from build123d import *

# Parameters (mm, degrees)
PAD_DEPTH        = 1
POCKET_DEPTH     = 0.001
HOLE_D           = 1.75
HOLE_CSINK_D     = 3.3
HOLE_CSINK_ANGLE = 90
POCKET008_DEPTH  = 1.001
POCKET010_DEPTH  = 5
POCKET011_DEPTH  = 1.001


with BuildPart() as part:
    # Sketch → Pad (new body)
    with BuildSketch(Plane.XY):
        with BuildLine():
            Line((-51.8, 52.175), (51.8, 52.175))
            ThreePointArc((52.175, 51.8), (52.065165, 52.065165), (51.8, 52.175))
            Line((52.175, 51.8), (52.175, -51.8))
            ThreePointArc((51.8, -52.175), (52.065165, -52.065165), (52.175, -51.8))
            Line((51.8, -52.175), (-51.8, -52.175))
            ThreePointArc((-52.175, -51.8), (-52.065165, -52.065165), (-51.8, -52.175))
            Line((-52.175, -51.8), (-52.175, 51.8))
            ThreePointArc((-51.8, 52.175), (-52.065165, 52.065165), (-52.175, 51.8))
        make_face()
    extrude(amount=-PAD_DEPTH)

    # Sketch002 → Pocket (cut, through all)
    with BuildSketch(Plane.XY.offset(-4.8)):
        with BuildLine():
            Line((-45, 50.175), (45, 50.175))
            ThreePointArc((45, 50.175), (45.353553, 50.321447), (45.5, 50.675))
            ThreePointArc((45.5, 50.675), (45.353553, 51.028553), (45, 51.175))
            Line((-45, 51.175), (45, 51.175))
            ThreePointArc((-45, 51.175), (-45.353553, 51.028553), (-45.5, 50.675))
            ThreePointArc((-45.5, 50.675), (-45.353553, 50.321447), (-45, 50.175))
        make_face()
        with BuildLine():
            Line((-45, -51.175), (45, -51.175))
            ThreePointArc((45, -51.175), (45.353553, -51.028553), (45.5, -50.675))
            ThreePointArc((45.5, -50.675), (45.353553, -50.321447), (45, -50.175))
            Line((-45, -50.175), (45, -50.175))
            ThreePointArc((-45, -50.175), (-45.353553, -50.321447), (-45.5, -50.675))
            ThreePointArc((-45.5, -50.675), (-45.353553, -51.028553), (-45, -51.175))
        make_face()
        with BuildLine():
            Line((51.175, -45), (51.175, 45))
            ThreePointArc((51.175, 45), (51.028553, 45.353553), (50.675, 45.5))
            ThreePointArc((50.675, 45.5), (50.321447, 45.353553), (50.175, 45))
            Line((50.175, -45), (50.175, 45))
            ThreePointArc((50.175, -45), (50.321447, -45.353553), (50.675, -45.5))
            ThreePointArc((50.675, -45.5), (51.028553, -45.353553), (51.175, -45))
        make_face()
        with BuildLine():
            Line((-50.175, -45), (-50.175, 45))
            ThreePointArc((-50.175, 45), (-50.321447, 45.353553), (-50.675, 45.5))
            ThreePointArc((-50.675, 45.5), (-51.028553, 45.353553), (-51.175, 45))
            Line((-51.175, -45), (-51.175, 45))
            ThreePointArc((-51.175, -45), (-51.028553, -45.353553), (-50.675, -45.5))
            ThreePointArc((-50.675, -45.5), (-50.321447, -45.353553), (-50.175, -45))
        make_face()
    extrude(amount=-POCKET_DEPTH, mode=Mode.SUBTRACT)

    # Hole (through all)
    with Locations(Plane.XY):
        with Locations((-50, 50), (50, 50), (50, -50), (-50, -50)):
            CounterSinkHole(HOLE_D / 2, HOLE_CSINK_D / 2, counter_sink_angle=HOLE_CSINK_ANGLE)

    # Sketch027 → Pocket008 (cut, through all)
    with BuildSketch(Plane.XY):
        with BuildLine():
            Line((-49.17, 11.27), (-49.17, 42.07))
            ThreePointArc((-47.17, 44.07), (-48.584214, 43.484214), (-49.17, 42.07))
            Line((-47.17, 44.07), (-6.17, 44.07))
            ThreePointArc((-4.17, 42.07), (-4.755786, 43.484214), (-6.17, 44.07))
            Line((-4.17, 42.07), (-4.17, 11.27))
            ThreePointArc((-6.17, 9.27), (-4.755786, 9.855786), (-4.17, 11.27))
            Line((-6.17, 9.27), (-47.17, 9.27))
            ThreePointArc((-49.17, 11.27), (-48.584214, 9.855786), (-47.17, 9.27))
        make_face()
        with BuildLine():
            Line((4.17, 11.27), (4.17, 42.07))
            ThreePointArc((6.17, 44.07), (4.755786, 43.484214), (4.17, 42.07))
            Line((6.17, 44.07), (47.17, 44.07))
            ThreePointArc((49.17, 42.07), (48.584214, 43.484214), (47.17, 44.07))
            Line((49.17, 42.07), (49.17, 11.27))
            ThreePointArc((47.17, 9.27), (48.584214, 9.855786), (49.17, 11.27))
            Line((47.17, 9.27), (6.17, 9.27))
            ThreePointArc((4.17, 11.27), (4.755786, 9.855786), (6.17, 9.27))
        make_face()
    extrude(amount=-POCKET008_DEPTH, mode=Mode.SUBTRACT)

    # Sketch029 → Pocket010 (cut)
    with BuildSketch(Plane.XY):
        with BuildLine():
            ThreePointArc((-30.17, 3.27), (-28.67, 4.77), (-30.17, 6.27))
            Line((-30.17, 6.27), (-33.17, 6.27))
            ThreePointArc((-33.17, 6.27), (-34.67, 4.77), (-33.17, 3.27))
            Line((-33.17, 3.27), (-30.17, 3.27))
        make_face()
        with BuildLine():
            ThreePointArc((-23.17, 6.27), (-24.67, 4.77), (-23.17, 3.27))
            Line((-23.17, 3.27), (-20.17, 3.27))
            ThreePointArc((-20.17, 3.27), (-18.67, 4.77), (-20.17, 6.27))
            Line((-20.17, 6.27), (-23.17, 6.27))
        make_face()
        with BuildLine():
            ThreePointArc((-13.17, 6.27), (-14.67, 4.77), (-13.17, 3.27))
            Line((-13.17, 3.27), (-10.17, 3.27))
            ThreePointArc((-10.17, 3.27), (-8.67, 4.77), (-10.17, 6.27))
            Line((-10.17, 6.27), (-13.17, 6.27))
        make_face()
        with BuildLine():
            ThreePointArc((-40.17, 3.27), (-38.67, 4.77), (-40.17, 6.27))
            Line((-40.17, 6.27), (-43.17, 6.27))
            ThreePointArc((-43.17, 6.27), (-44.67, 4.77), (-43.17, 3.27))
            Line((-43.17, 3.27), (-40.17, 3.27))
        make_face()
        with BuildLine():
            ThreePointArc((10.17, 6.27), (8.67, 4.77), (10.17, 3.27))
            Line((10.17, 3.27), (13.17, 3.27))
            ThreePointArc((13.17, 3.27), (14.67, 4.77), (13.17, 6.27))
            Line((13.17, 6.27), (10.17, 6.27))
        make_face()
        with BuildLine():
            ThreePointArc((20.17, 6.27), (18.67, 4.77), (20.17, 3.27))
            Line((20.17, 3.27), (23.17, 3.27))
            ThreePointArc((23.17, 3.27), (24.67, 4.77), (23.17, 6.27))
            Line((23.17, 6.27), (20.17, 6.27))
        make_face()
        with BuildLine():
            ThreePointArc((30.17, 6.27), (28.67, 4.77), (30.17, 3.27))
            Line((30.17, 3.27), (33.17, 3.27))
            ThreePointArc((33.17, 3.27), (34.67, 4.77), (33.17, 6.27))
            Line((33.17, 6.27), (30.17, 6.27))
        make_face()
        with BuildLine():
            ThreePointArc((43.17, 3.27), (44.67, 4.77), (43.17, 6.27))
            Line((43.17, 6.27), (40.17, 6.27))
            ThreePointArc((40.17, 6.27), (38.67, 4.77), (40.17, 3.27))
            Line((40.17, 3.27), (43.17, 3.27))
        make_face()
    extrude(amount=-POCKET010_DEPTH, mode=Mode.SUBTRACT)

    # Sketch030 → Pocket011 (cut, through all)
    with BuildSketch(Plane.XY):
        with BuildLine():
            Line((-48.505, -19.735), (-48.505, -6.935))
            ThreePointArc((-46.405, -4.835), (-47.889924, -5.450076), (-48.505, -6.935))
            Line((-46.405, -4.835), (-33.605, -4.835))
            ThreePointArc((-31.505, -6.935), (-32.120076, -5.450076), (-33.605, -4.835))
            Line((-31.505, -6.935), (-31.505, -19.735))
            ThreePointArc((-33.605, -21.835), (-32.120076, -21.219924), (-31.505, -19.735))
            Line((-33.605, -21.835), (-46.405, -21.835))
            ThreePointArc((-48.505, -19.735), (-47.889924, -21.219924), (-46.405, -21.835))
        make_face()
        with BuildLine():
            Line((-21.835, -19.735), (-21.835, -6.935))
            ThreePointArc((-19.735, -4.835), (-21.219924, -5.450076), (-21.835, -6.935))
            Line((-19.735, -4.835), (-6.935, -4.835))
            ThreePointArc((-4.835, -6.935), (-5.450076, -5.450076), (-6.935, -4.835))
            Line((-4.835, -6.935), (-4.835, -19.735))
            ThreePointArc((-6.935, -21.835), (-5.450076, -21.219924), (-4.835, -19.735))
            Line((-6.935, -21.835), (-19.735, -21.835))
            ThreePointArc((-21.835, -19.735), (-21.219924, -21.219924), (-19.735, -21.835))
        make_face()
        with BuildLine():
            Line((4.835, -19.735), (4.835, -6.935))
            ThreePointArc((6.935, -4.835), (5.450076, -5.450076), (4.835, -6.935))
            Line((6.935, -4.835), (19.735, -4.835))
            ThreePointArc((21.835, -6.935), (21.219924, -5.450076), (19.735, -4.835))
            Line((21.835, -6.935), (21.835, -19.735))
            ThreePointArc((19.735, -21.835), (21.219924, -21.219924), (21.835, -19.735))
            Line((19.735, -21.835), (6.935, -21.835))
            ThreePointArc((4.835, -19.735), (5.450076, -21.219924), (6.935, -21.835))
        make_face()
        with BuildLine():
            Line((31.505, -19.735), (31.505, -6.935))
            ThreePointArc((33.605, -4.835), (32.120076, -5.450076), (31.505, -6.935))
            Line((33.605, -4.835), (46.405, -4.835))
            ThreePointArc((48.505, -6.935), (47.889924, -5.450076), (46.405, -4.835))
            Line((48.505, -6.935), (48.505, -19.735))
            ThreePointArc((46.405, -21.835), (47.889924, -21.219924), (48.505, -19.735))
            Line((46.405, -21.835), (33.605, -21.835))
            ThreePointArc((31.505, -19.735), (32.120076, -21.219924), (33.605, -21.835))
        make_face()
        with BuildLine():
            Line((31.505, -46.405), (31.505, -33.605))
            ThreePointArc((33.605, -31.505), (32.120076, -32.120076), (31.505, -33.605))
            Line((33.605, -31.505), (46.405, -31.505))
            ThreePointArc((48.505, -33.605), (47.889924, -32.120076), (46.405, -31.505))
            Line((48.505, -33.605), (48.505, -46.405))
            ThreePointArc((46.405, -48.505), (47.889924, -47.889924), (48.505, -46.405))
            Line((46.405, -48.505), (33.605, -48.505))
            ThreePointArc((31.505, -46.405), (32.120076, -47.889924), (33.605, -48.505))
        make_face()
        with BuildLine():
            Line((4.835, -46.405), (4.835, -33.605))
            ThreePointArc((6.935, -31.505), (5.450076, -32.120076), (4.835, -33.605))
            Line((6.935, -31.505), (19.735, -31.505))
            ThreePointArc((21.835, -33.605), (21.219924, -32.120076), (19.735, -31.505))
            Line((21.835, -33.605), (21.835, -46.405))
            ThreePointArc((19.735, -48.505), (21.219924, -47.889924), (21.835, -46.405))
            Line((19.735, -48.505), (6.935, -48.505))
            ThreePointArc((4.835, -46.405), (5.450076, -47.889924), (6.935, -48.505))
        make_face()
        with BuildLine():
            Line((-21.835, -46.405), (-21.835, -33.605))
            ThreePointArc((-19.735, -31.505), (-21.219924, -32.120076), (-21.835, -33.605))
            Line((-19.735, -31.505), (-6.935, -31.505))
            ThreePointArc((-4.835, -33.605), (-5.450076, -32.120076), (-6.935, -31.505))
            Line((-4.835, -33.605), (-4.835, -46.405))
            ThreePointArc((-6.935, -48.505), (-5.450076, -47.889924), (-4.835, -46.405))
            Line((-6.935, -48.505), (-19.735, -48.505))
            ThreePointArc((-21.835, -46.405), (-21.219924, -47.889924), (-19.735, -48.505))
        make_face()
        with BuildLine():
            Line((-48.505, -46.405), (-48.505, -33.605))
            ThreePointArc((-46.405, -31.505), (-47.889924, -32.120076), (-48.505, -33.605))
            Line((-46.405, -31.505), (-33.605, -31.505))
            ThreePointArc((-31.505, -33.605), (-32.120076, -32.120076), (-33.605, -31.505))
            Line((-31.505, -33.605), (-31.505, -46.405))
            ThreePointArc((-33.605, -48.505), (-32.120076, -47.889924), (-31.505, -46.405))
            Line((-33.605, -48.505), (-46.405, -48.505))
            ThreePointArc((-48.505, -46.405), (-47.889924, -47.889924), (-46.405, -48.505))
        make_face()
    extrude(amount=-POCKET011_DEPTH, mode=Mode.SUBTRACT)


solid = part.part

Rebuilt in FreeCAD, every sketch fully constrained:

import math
import FreeCAD as App
import Part
import Sketcher

V = App.Vector
Q = App.Units.Quantity

doc = App.newDocument("Part")
body = doc.addObject("PartDesign::Body", "Body")

# Sketch on XY plane
sketch1 = doc.addObject("Sketcher::SketchObject", "Sketch")
body.addObject(sketch1)
sketch1.AttachmentSupport = (doc.XY_Plane, [""])
sketch1.MapMode = "FlatFace"
sketch1.addGeometry([
    Part.LineSegment(V(51.8, 52.175, 0), V(-51.8, 52.175, 0)),  # 0
    Part.ArcOfCircle(Part.Circle(V(-51.8, 51.8, 0), V(0, 0, 1), 0.375), math.radians(90.000022), math.radians(179.999978)),  # 1
    Part.LineSegment(V(-52.175, 51.8, 0), V(-52.175, -51.8, 0)),  # 2
    Part.ArcOfCircle(Part.Circle(V(-51.8, -51.8, 0), V(0, 0, 1), 0.375), math.radians(-179.999978), math.radians(-90.000022)),  # 3
    Part.LineSegment(V(-51.8, -52.175, 0), V(51.8, -52.175, 0)),  # 4
    Part.ArcOfCircle(Part.Circle(V(51.8, -51.8, 0), V(0, 0, 1), 0.375), math.radians(-89.999978), math.radians(-0.000022)),  # 5
    Part.LineSegment(V(52.175, -51.8, 0), V(52.175, 51.8, 0)),  # 6
    Part.ArcOfCircle(Part.Circle(V(51.8, 51.8, 0), V(0, 0, 1), 0.375), math.radians(0.000022), math.radians(89.999978)),  # 7
], False)
sketch1.addConstraint([
    Sketcher.Constraint("Tangent", 0, 2, 1, 1),
    Sketcher.Constraint("Tangent", 1, 2, 2, 1),
    Sketcher.Constraint("Tangent", 2, 2, 3, 1),
    Sketcher.Constraint("Tangent", 3, 2, 4, 1),
    Sketcher.Constraint("Tangent", 4, 2, 5, 1),
    Sketcher.Constraint("Tangent", 5, 2, 6, 1),
    Sketcher.Constraint("Tangent", 6, 2, 7, 1),
    Sketcher.Constraint("Tangent", 7, 2, 0, 1),
    Sketcher.Constraint("Horizontal", 0),
    Sketcher.Constraint("Vertical", 2),
    Sketcher.Constraint("Horizontal", 4),
    Sketcher.Constraint("Vertical", 6),
    Sketcher.Constraint("Equal", 1, 3),
    Sketcher.Constraint("Equal", 3, 5),
    Sketcher.Constraint("Equal", 5, 7),
    Sketcher.Constraint("Symmetric", 1, 3, 5, 3, -1, 1),
    Sketcher.Constraint("Equal", 4, 2),
    Sketcher.Constraint("DistanceX", 0, 2, 0, 1, Q("103.6 mm")),
    Sketcher.Constraint("Radius", 1, Q("0.375 mm")),
])
pad1 = doc.addObject("PartDesign::Pad", "Pad")
body.addObject(pad1)
pad1.Profile = sketch1
pad1.Length = 1
pad1.Reversed = True

# Sketch on XY plane
sketch2 = doc.addObject("Sketcher::SketchObject", "Sketch001")
body.addObject(sketch2)
sketch2.AttachmentSupport = (doc.XY_Plane, [""])
sketch2.MapMode = "FlatFace"
sketch2.AttachmentOffset = App.Placement(V(0, 0, -4.8), App.Rotation())
sketch2.addGeometry([
    Part.LineSegment(V(-45, 50.175, 0), V(45, 50.175, 0)),  # 0
    Part.ArcOfCircle(Part.Circle(V(44.999999, 50.675001, 0), V(0, 0, 1), 0.500001), math.radians(-89.999847), math.radians(-0.000153)),  # 1
    Part.ArcOfCircle(Part.Circle(V(44.999999, 50.674999, 0), V(0, 0, 1), 0.500001), math.radians(0.000153), math.radians(89.999847)),  # 2
    Part.LineSegment(V(45, 51.175, 0), V(-45, 51.175, 0)),  # 3
    Part.ArcOfCircle(Part.Circle(V(-44.999999, 50.674999, 0), V(0, 0, 1), 0.500001), math.radians(90.000153), math.radians(179.999847)),  # 4
    Part.ArcOfCircle(Part.Circle(V(-44.999999, 50.675001, 0), V(0, 0, 1), 0.500001), math.radians(-179.999847), math.radians(-90.000153)),  # 5
    Part.LineSegment(V(-45, -51.175, 0), V(45, -51.175, 0)),  # 6
    Part.ArcOfCircle(Part.Circle(V(44.999999, -50.674999, 0), V(0, 0, 1), 0.500001), math.radians(-89.999847), math.radians(-0.000153)),  # 7
    Part.ArcOfCircle(Part.Circle(V(44.999999, -50.675001, 0), V(0, 0, 1), 0.500001), math.radians(0.000153), math.radians(89.999847)),  # 8
    Part.LineSegment(V(45, -50.175, 0), V(-45, -50.175, 0)),  # 9
    Part.ArcOfCircle(Part.Circle(V(-44.999999, -50.675001, 0), V(0, 0, 1), 0.500001), math.radians(90.000153), math.radians(179.999847)),  # 10
    Part.ArcOfCircle(Part.Circle(V(-44.999999, -50.674999, 0), V(0, 0, 1), 0.500001), math.radians(-179.999847), math.radians(-90.000153)),  # 11
    Part.LineSegment(V(51.175, -45, 0), V(51.175, 45, 0)),  # 12
    Part.ArcOfCircle(Part.Circle(V(50.674999, 44.999999, 0), V(0, 0, 1), 0.500001), math.radians(0.000153), math.radians(89.999847)),  # 13
    Part.ArcOfCircle(Part.Circle(V(50.675001, 44.999999, 0), V(0, 0, 1), 0.500001), math.radians(90.000153), math.radians(179.999847)),  # 14
    Part.LineSegment(V(50.175, 45, 0), V(50.175, -45, 0)),  # 15
    Part.ArcOfCircle(Part.Circle(V(50.675001, -44.999999, 0), V(0, 0, 1), 0.500001), math.radians(-179.999847), math.radians(-90.000153)),  # 16
    Part.ArcOfCircle(Part.Circle(V(50.674999, -44.999999, 0), V(0, 0, 1), 0.500001), math.radians(-89.999847), math.radians(-0.000153)),  # 17
    Part.LineSegment(V(-50.175, -45, 0), V(-50.175, 45, 0)),  # 18
    Part.ArcOfCircle(Part.Circle(V(-50.675001, 44.999999, 0), V(0, 0, 1), 0.500001), math.radians(0.000153), math.radians(89.999847)),  # 19
    Part.ArcOfCircle(Part.Circle(V(-50.674999, 44.999999, 0), V(0, 0, 1), 0.500001), math.radians(90.000153), math.radians(179.999847)),  # 20
    Part.LineSegment(V(-51.175, 45, 0), V(-51.175, -45, 0)),  # 21
    Part.ArcOfCircle(Part.Circle(V(-50.674999, -44.999999, 0), V(0, 0, 1), 0.500001), math.radians(-179.999847), math.radians(-90.000153)),  # 22
    Part.ArcOfCircle(Part.Circle(V(-50.675001, -44.999999, 0), V(0, 0, 1), 0.500001), math.radians(-89.999847), math.radians(-0.000153)),  # 23
], False)
sketch2.addConstraint([
    Sketcher.Constraint("Coincident", 0, 2, 1, 1),
    Sketcher.Constraint("Coincident", 1, 2, 2, 1),
    Sketcher.Constraint("Coincident", 2, 2, 3, 1),
    Sketcher.Constraint("Coincident", 3, 2, 4, 1),
    Sketcher.Constraint("Coincident", 4, 2, 5, 1),
    Sketcher.Constraint("Coincident", 5, 2, 0, 1),
    Sketcher.Constraint("Coincident", 6, 2, 7, 1),
    Sketcher.Constraint("Coincident", 7, 2, 8, 1),
    Sketcher.Constraint("Coincident", 8, 2, 9, 1),
    Sketcher.Constraint("Coincident", 9, 2, 10, 1),
    Sketcher.Constraint("Coincident", 10, 2, 11, 1),
    Sketcher.Constraint("Coincident", 11, 2, 6, 1),
    Sketcher.Constraint("Coincident", 12, 2, 13, 1),
    Sketcher.Constraint("Coincident", 13, 2, 14, 1),
    Sketcher.Constraint("Coincident", 14, 2, 15, 1),
    Sketcher.Constraint("Coincident", 15, 2, 16, 1),
    Sketcher.Constraint("Coincident", 16, 2, 17, 1),
    Sketcher.Constraint("Coincident", 17, 2, 12, 1),
    Sketcher.Constraint("Coincident", 18, 2, 19, 1),
    Sketcher.Constraint("Coincident", 19, 2, 20, 1),
    Sketcher.Constraint("Coincident", 20, 2, 21, 1),
    Sketcher.Constraint("Coincident", 21, 2, 22, 1),
    Sketcher.Constraint("Coincident", 22, 2, 23, 1),
    Sketcher.Constraint("Coincident", 23, 2, 18, 1),
    Sketcher.Constraint("Horizontal", 0),
    Sketcher.Constraint("Horizontal", 3),
    Sketcher.Constraint("Horizontal", 6),
    Sketcher.Constraint("Horizontal", 9),
    Sketcher.Constraint("Vertical", 12),
    Sketcher.Constraint("Vertical", 15),
    Sketcher.Constraint("Vertical", 18),
    Sketcher.Constraint("Vertical", 21),
    Sketcher.Constraint("Coincident", 2, 3, 1, 3),
    Sketcher.Constraint("Coincident", 5, 3, 4, 3),
    Sketcher.Constraint("Coincident", 8, 3, 7, 3),
    Sketcher.Constraint("Coincident", 11, 3, 10, 3),
    Sketcher.Constraint("Coincident", 14, 3, 13, 3),
    Sketcher.Constraint("Coincident", 17, 3, 16, 3),
    Sketcher.Constraint("Coincident", 20, 3, 19, 3),
    Sketcher.Constraint("Coincident", 23, 3, 22, 3),
    Sketcher.Constraint("Equal", 5, 7),
    Sketcher.Constraint("Equal", 11, 13),
    Sketcher.Constraint("Equal", 17, 19),
    Sketcher.Constraint("Symmetric", 4, 3, 7, 3, -1, 1),
    Sketcher.Constraint("Symmetric", 16, 3, 19, 3, -1, 1),
    Sketcher.Constraint("Symmetric", 1, 2, 10, 2, -1, 1),
    Sketcher.Constraint("Symmetric", 13, 2, 22, 2, -1, 1),
    Sketcher.Constraint("Symmetric", 1, 2, 4, 2, -2),
    Sketcher.Constraint("Symmetric", 13, 2, 19, 2, -2),
    Sketcher.Constraint("Horizontal", 5, 3, 1, 2),
    Sketcher.Constraint("Horizontal", 11, 3, 7, 2),
    Sketcher.Constraint("Horizontal", 20, 3, 12, 2),
    Sketcher.Constraint("Horizontal", 12, 2, 14, 2),
    Sketcher.Constraint("Horizontal", 23, 3, 15, 2),
    Sketcher.Constraint("Horizontal", 15, 2, 17, 2),
    Sketcher.Constraint("Horizontal", 14, 2, 18, 2),
    Sketcher.Constraint("Horizontal", 18, 2, 20, 2),
    Sketcher.Constraint("Horizontal", 17, 2, 21, 2),
    Sketcher.Constraint("Horizontal", 21, 2, 23, 2),
    Sketcher.Constraint("Vertical", 8, 3, 0, 2),
    Sketcher.Constraint("Vertical", 0, 2, 2, 2),
    Sketcher.Constraint("Vertical", 11, 3, 3, 2),
    Sketcher.Constraint("Vertical", 3, 2, 5, 2),
    Sketcher.Constraint("Vertical", 2, 2, 6, 2),
    Sketcher.Constraint("Vertical", 6, 2, 8, 2),
    Sketcher.Constraint("Vertical", 5, 2, 9, 2),
    Sketcher.Constraint("Vertical", 9, 2, 11, 2),
    Sketcher.Constraint("Vertical", 17, 3, 13, 2),
    Sketcher.Constraint("Vertical", 13, 2, 16, 2),
    Sketcher.Constraint("Equal", 9, 12),
    Sketcher.Constraint("Radius", 1, Q("0.500001 mm")),
    Sketcher.Constraint("DistanceX", 0, 1, 0, 2, Q("90 mm")),
    Sketcher.Constraint("DistanceY", 7, 3, 1, 3, Q("101.35 mm")),
    Sketcher.Constraint("DistanceX", -1, 1, 13, 3, Q("50.674999 mm")),
])
pocket1 = doc.addObject("PartDesign::Pocket", "Pocket")
body.addObject(pocket1)
pocket1.Profile = sketch2
pocket1.Type = "ThroughAll"

# Sketch on XY plane
sketch3 = doc.addObject("Sketcher::SketchObject", "Sketch002")
body.addObject(sketch3)
sketch3.AttachmentSupport = (doc.XY_Plane, [""])
sketch3.MapMode = "FlatFace"
sketch3.addGeometry([
    Part.Circle(V(-50, 50, 0), V(0, 0, 1), 0.875),
    Part.Circle(V(50, 50, 0), V(0, 0, 1), 0.875),
    Part.Circle(V(50, -50, 0), V(0, 0, 1), 0.875),
    Part.Circle(V(-50, -50, 0), V(0, 0, 1), 0.875),
], False)
sketch3.addConstraint([
    Sketcher.Constraint("Equal", 0, 1),
    Sketcher.Constraint("Equal", 1, 2),
    Sketcher.Constraint("Equal", 2, 3),
    Sketcher.Constraint("Symmetric", 0, 3, 2, 3, -1, 1),
    Sketcher.Constraint("Symmetric", 1, 3, 3, 3, -1, 1),
    Sketcher.Constraint("Symmetric", 0, 3, 1, 3, -2),
    Sketcher.Constraint("Diameter", 0, Q("1.75 mm")),
    Sketcher.Constraint("DistanceX", 0, 3, -1, 1, Q("50 mm")),
    Sketcher.Constraint("DistanceY", -1, 1, 0, 3, Q("50 mm")),
])
doc.recompute()
hole = doc.addObject("PartDesign::Hole", "Hole")
body.addObject(hole)
hole.Profile = sketch3
hole.ThreadType = "None"
hole.Diameter = 1.75
hole.DepthType = "ThroughAll"
hole.HoleCutType = "Countersink"
hole.HoleCutDiameter = 3.3
hole.HoleCutCountersinkAngle = 90

# Sketch on XY plane
sketch4 = doc.addObject("Sketcher::SketchObject", "Sketch003")
body.addObject(sketch4)
sketch4.AttachmentSupport = (doc.XY_Plane, [""])
sketch4.MapMode = "FlatFace"
sketch4.addGeometry([
    Part.LineSegment(V(-49.17, 42.07, 0), V(-49.17, 11.27, 0)),  # 0
    Part.ArcOfCircle(Part.Circle(V(-47.170001, 11.269999, 0), V(0, 0, 1), 1.999999), math.radians(179.999957), math.radians(270.000043)),  # 1
    Part.LineSegment(V(-47.17, 9.27, 0), V(-6.17, 9.27, 0)),  # 2
    Part.ArcOfCircle(Part.Circle(V(-6.169999, 11.269999, 0), V(0, 0, 1), 1.999999), math.radians(-90.000043), math.radians(0.000043)),  # 3
    Part.LineSegment(V(-4.17, 11.27, 0), V(-4.17, 42.07, 0)),  # 4
    Part.ArcOfCircle(Part.Circle(V(-6.169999, 42.070001, 0), V(0, 0, 1), 1.999999), math.radians(-0.000043), math.radians(90.000043)),  # 5
    Part.LineSegment(V(-6.17, 44.07, 0), V(-47.17, 44.07, 0)),  # 6
    Part.ArcOfCircle(Part.Circle(V(-47.170001, 42.070001, 0), V(0, 0, 1), 1.999999), math.radians(89.999957), math.radians(180.000043)),  # 7
    Part.LineSegment(V(4.17, 42.07, 0), V(4.17, 11.27, 0)),  # 8
    Part.ArcOfCircle(Part.Circle(V(6.169999, 11.269999, 0), V(0, 0, 1), 1.999999), math.radians(179.999957), math.radians(270.000043)),  # 9
    Part.LineSegment(V(6.17, 9.27, 0), V(47.17, 9.27, 0)),  # 10
    Part.ArcOfCircle(Part.Circle(V(47.170001, 11.269999, 0), V(0, 0, 1), 1.999999), math.radians(-90.000043), math.radians(0.000043)),  # 11
    Part.LineSegment(V(49.17, 11.27, 0), V(49.17, 42.07, 0)),  # 12
    Part.ArcOfCircle(Part.Circle(V(47.170001, 42.070001, 0), V(0, 0, 1), 1.999999), math.radians(-0.000043), math.radians(90.000043)),  # 13
    Part.LineSegment(V(47.17, 44.07, 0), V(6.17, 44.07, 0)),  # 14
    Part.ArcOfCircle(Part.Circle(V(6.169999, 42.070001, 0), V(0, 0, 1), 1.999999), math.radians(89.999957), math.radians(180.000043)),  # 15
], False)
sketch4.addConstraint([
    Sketcher.Constraint("Tangent", 0, 2, 1, 1),
    Sketcher.Constraint("Tangent", 1, 2, 2, 1),
    Sketcher.Constraint("Tangent", 2, 2, 3, 1),
    Sketcher.Constraint("Tangent", 3, 2, 4, 1),
    Sketcher.Constraint("Tangent", 4, 2, 5, 1),
    Sketcher.Constraint("Tangent", 5, 2, 6, 1),
    Sketcher.Constraint("Tangent", 6, 2, 7, 1),
    Sketcher.Constraint("Tangent", 7, 2, 0, 1),
    Sketcher.Constraint("Tangent", 8, 2, 9, 1),
    Sketcher.Constraint("Tangent", 9, 2, 10, 1),
    Sketcher.Constraint("Tangent", 10, 2, 11, 1),
    Sketcher.Constraint("Tangent", 11, 2, 12, 1),
    Sketcher.Constraint("Tangent", 12, 2, 13, 1),
    Sketcher.Constraint("Tangent", 13, 2, 14, 1),
    Sketcher.Constraint("Tangent", 14, 2, 15, 1),
    Sketcher.Constraint("Tangent", 15, 2, 8, 1),
    Sketcher.Constraint("Vertical", 0),
    Sketcher.Constraint("Horizontal", 2),
    Sketcher.Constraint("Vertical", 4),
    Sketcher.Constraint("Horizontal", 6),
    Sketcher.Constraint("Vertical", 8),
    Sketcher.Constraint("Horizontal", 10),
    Sketcher.Constraint("Vertical", 12),
    Sketcher.Constraint("Horizontal", 14),
    Sketcher.Constraint("Equal", 1, 3),
    Sketcher.Constraint("Equal", 3, 5),
    Sketcher.Constraint("Equal", 5, 7),
    Sketcher.Constraint("Equal", 7, 9),
    Sketcher.Constraint("Equal", 9, 11),
    Sketcher.Constraint("Equal", 11, 13),
    Sketcher.Constraint("Equal", 13, 15),
    Sketcher.Constraint("Symmetric", 3, 3, 9, 3, -2),
    Sketcher.Constraint("Symmetric", 7, 3, 13, 3, -2),
    Sketcher.Constraint("Radius", 1, Q("1.999999 mm")),
    Sketcher.Constraint("DistanceX", 2, 1, 2, 2, Q("41 mm")),
    Sketcher.Constraint("DistanceY", 0, 2, 0, 1, Q("30.8 mm")),
    Sketcher.Constraint("DistanceX", 1, 3, -1, 1, Q("47.170001 mm")),
    Sketcher.Constraint("DistanceY", -1, 1, 1, 3, Q("11.269999 mm")),
])
pocket2 = doc.addObject("PartDesign::Pocket", "Pocket001")
body.addObject(pocket2)
pocket2.Profile = sketch4
pocket2.Type = "ThroughAll"

# Sketch on XY plane
sketch5 = doc.addObject("Sketcher::SketchObject", "Sketch004")
body.addObject(sketch5)
sketch5.AttachmentSupport = (doc.XY_Plane, [""])
sketch5.MapMode = "FlatFace"
sketch5.addGeometry([
    Part.ArcOfCircle(Part.Circle(V(-30.17, 4.77, 0), V(0, 0, 1), 1.5), math.radians(-90), math.radians(90)),  # 0
    Part.LineSegment(V(-30.17, 6.27, 0), V(-33.17, 6.27, 0)),  # 1
    Part.ArcOfCircle(Part.Circle(V(-33.17, 4.77, 0), V(0, 0, 1), 1.5), math.radians(90), math.radians(270)),  # 2
    Part.LineSegment(V(-33.17, 3.27, 0), V(-30.17, 3.27, 0)),  # 3
    Part.ArcOfCircle(Part.Circle(V(-23.17, 4.77, 0), V(0, 0, 1), 1.5), math.radians(90), math.radians(270)),  # 4
    Part.LineSegment(V(-23.17, 3.27, 0), V(-20.17, 3.27, 0)),  # 5
    Part.ArcOfCircle(Part.Circle(V(-20.17, 4.77, 0), V(0, 0, 1), 1.5), math.radians(-90), math.radians(90)),  # 6
    Part.LineSegment(V(-20.17, 6.27, 0), V(-23.17, 6.27, 0)),  # 7
    Part.ArcOfCircle(Part.Circle(V(-13.17, 4.77, 0), V(0, 0, 1), 1.5), math.radians(90), math.radians(270)),  # 8
    Part.LineSegment(V(-13.17, 3.27, 0), V(-10.17, 3.27, 0)),  # 9
    Part.ArcOfCircle(Part.Circle(V(-10.17, 4.77, 0), V(0, 0, 1), 1.5), math.radians(-90), math.radians(90)),  # 10
    Part.LineSegment(V(-10.17, 6.27, 0), V(-13.17, 6.27, 0)),  # 11
    Part.ArcOfCircle(Part.Circle(V(-40.17, 4.77, 0), V(0, 0, 1), 1.5), math.radians(-90), math.radians(90)),  # 12
    Part.LineSegment(V(-40.17, 6.27, 0), V(-43.17, 6.27, 0)),  # 13
    Part.ArcOfCircle(Part.Circle(V(-43.17, 4.77, 0), V(0, 0, 1), 1.5), math.radians(90), math.radians(270)),  # 14
    Part.LineSegment(V(-43.17, 3.27, 0), V(-40.17, 3.27, 0)),  # 15
    Part.ArcOfCircle(Part.Circle(V(10.17, 4.77, 0), V(0, 0, 1), 1.5), math.radians(90), math.radians(270)),  # 16
    Part.LineSegment(V(10.17, 3.27, 0), V(13.17, 3.27, 0)),  # 17
    Part.ArcOfCircle(Part.Circle(V(13.17, 4.77, 0), V(0, 0, 1), 1.5), math.radians(-90), math.radians(90)),  # 18
    Part.LineSegment(V(13.17, 6.27, 0), V(10.17, 6.27, 0)),  # 19
    Part.ArcOfCircle(Part.Circle(V(20.17, 4.77, 0), V(0, 0, 1), 1.5), math.radians(90), math.radians(270)),  # 20
    Part.LineSegment(V(20.17, 3.27, 0), V(23.17, 3.27, 0)),  # 21
    Part.ArcOfCircle(Part.Circle(V(23.17, 4.77, 0), V(0, 0, 1), 1.5), math.radians(-90), math.radians(90)),  # 22
    Part.LineSegment(V(23.17, 6.27, 0), V(20.17, 6.27, 0)),  # 23
    Part.ArcOfCircle(Part.Circle(V(30.17, 4.77, 0), V(0, 0, 1), 1.5), math.radians(90), math.radians(270)),  # 24
    Part.LineSegment(V(30.17, 3.27, 0), V(33.17, 3.27, 0)),  # 25
    Part.ArcOfCircle(Part.Circle(V(33.17, 4.77, 0), V(0, 0, 1), 1.5), math.radians(-90), math.radians(90)),  # 26
    Part.LineSegment(V(33.17, 6.27, 0), V(30.17, 6.27, 0)),  # 27
    Part.ArcOfCircle(Part.Circle(V(43.17, 4.77, 0), V(0, 0, 1), 1.5), math.radians(-90), math.radians(90)),  # 28
    Part.LineSegment(V(43.17, 6.27, 0), V(40.17, 6.27, 0)),  # 29
    Part.ArcOfCircle(Part.Circle(V(40.17, 4.77, 0), V(0, 0, 1), 1.5), math.radians(90), math.radians(270)),  # 30
    Part.LineSegment(V(40.17, 3.27, 0), V(43.17, 3.27, 0)),  # 31
], False)
sketch5.addConstraint([
    Sketcher.Constraint("Tangent", 0, 2, 1, 1),
    Sketcher.Constraint("Tangent", 1, 2, 2, 1),
    Sketcher.Constraint("Tangent", 2, 2, 3, 1),
    Sketcher.Constraint("Tangent", 3, 2, 0, 1),
    Sketcher.Constraint("Tangent", 4, 2, 5, 1),
    Sketcher.Constraint("Tangent", 5, 2, 6, 1),
    Sketcher.Constraint("Tangent", 6, 2, 7, 1),
    Sketcher.Constraint("Tangent", 7, 2, 4, 1),
    Sketcher.Constraint("Tangent", 8, 2, 9, 1),
    Sketcher.Constraint("Tangent", 9, 2, 10, 1),
    Sketcher.Constraint("Tangent", 10, 2, 11, 1),
    Sketcher.Constraint("Tangent", 11, 2, 8, 1),
    Sketcher.Constraint("Tangent", 12, 2, 13, 1),
    Sketcher.Constraint("Tangent", 13, 2, 14, 1),
    Sketcher.Constraint("Tangent", 14, 2, 15, 1),
    Sketcher.Constraint("Tangent", 15, 2, 12, 1),
    Sketcher.Constraint("Tangent", 16, 2, 17, 1),
    Sketcher.Constraint("Tangent", 17, 2, 18, 1),
    Sketcher.Constraint("Tangent", 18, 2, 19, 1),
    Sketcher.Constraint("Tangent", 19, 2, 16, 1),
    Sketcher.Constraint("Tangent", 20, 2, 21, 1),
    Sketcher.Constraint("Tangent", 21, 2, 22, 1),
    Sketcher.Constraint("Tangent", 22, 2, 23, 1),
    Sketcher.Constraint("Tangent", 23, 2, 20, 1),
    Sketcher.Constraint("Tangent", 24, 2, 25, 1),
    Sketcher.Constraint("Tangent", 25, 2, 26, 1),
    Sketcher.Constraint("Tangent", 26, 2, 27, 1),
    Sketcher.Constraint("Tangent", 27, 2, 24, 1),
    Sketcher.Constraint("Tangent", 28, 2, 29, 1),
    Sketcher.Constraint("Tangent", 29, 2, 30, 1),
    Sketcher.Constraint("Tangent", 30, 2, 31, 1),
    Sketcher.Constraint("Tangent", 31, 2, 28, 1),
    Sketcher.Constraint("Horizontal", 1),
    Sketcher.Constraint("Horizontal", 3),
    Sketcher.Constraint("Horizontal", 5),
    Sketcher.Constraint("Horizontal", 7),
    Sketcher.Constraint("Horizontal", 9),
    Sketcher.Constraint("Horizontal", 11),
    Sketcher.Constraint("Horizontal", 13),
    Sketcher.Constraint("Horizontal", 15),
    Sketcher.Constraint("Horizontal", 17),
    Sketcher.Constraint("Horizontal", 19),
    Sketcher.Constraint("Horizontal", 21),
    Sketcher.Constraint("Horizontal", 23),
    Sketcher.Constraint("Horizontal", 25),
    Sketcher.Constraint("Horizontal", 27),
    Sketcher.Constraint("Horizontal", 29),
    Sketcher.Constraint("Horizontal", 31),
    Sketcher.Constraint("Equal", 2, 4),
    Sketcher.Constraint("Equal", 6, 8),
    Sketcher.Constraint("Equal", 10, 12),
    Sketcher.Constraint("Equal", 14, 16),
    Sketcher.Constraint("Equal", 18, 20),
    Sketcher.Constraint("Equal", 22, 24),
    Sketcher.Constraint("Equal", 26, 28),
    Sketcher.Constraint("Symmetric", 10, 3, 16, 3, -2),
    Sketcher.Constraint("Symmetric", 6, 3, 20, 3, -2),
    Sketcher.Constraint("Symmetric", 0, 3, 24, 3, -2),
    Sketcher.Constraint("Symmetric", 14, 3, 28, 3, -2),
    Sketcher.Constraint("Horizontal", 2, 3, 4, 3),
    Sketcher.Constraint("Horizontal", 6, 3, 8, 3),
    Sketcher.Constraint("Horizontal", 10, 3, 12, 3),
    Sketcher.Constraint("Equal", 3, 5),
    Sketcher.Constraint("Equal", 7, 9),
    Sketcher.Constraint("Equal", 11, 13),
    Sketcher.Constraint("Equal", 15, 17),
    Sketcher.Constraint("Equal", 19, 21),
    Sketcher.Constraint("Equal", 23, 25),
    Sketcher.Constraint("Equal", 27, 29),
    Sketcher.Constraint("Radius", 0, Q("1.5 mm")),
    Sketcher.Constraint("DistanceX", 1, 2, 1, 1, Q("3 mm")),
    Sketcher.Constraint("DistanceX", 0, 3, 4, 3, Q("7 mm")),
    Sketcher.Constraint("DistanceX", 6, 3, 8, 3, Q("7 mm")),
    Sketcher.Constraint("DistanceX", 12, 3, 2, 3, Q("7 mm")),
    Sketcher.Constraint("DistanceX", 0, 3, -1, 1, Q("30.17 mm")),
    Sketcher.Constraint("DistanceY", -1, 1, 0, 3, Q("4.77 mm")),
])
pocket3 = doc.addObject("PartDesign::Pocket", "Pocket002")
body.addObject(pocket3)
pocket3.Profile = sketch5
pocket3.Length = 5

# Sketch on XY plane
sketch6 = doc.addObject("Sketcher::SketchObject", "Sketch005")
body.addObject(sketch6)
sketch6.AttachmentSupport = (doc.XY_Plane, [""])
sketch6.MapMode = "FlatFace"
sketch6.addGeometry([
    Part.LineSegment(V(-48.505, -6.935, 0), V(-48.505, -19.735, 0)),  # 0
    Part.ArcOfCircle(Part.Circle(V(-46.404999, -19.734999, 0), V(0, 0, 1), 2.100001), math.radians(-179.999978), math.radians(-90.000022)),  # 1
    Part.LineSegment(V(-46.405, -21.835, 0), V(-33.605, -21.835, 0)),  # 2
    Part.ArcOfCircle(Part.Circle(V(-33.605001, -19.734999, 0), V(0, 0, 1), 2.100001), math.radians(-89.999978), math.radians(-0.000022)),  # 3
    Part.LineSegment(V(-31.505, -19.735, 0), V(-31.505, -6.935, 0)),  # 4
    Part.ArcOfCircle(Part.Circle(V(-33.605001, -6.935001, 0), V(0, 0, 1), 2.100001), math.radians(0.000022), math.radians(89.999978)),  # 5
    Part.LineSegment(V(-33.605, -4.835, 0), V(-46.405, -4.835, 0)),  # 6
    Part.ArcOfCircle(Part.Circle(V(-46.404999, -6.935001, 0), V(0, 0, 1), 2.100001), math.radians(90.000022), math.radians(179.999978)),  # 7
    Part.LineSegment(V(-21.835, -6.935, 0), V(-21.835, -19.735, 0)),  # 8
    Part.ArcOfCircle(Part.Circle(V(-19.734999, -19.734999, 0), V(0, 0, 1), 2.100001), math.radians(-179.999978), math.radians(-90.000022)),  # 9
    Part.LineSegment(V(-19.735, -21.835, 0), V(-6.935, -21.835, 0)),  # 10
    Part.ArcOfCircle(Part.Circle(V(-6.935001, -19.734999, 0), V(0, 0, 1), 2.100001), math.radians(-89.999978), math.radians(-0.000022)),  # 11
    Part.LineSegment(V(-4.835, -19.735, 0), V(-4.835, -6.935, 0)),  # 12
    Part.ArcOfCircle(Part.Circle(V(-6.935001, -6.935001, 0), V(0, 0, 1), 2.100001), math.radians(0.000022), math.radians(89.999978)),  # 13
    Part.LineSegment(V(-6.935, -4.835, 0), V(-19.735, -4.835, 0)),  # 14
    Part.ArcOfCircle(Part.Circle(V(-19.734999, -6.935001, 0), V(0, 0, 1), 2.100001), math.radians(90.000022), math.radians(179.999978)),  # 15
    Part.LineSegment(V(4.835, -6.935, 0), V(4.835, -19.735, 0)),  # 16
    Part.ArcOfCircle(Part.Circle(V(6.935001, -19.734999, 0), V(0, 0, 1), 2.100001), math.radians(-179.999978), math.radians(-90.000022)),  # 17
    Part.LineSegment(V(6.935, -21.835, 0), V(19.735, -21.835, 0)),  # 18
    Part.ArcOfCircle(Part.Circle(V(19.734999, -19.734999, 0), V(0, 0, 1), 2.100001), math.radians(-89.999978), math.radians(-0.000022)),  # 19
    Part.LineSegment(V(21.835, -19.735, 0), V(21.835, -6.935, 0)),  # 20
    Part.ArcOfCircle(Part.Circle(V(19.734999, -6.935001, 0), V(0, 0, 1), 2.100001), math.radians(0.000022), math.radians(89.999978)),  # 21
    Part.LineSegment(V(19.735, -4.835, 0), V(6.935, -4.835, 0)),  # 22
    Part.ArcOfCircle(Part.Circle(V(6.935001, -6.935001, 0), V(0, 0, 1), 2.100001), math.radians(90.000022), math.radians(179.999978)),  # 23
    Part.LineSegment(V(31.505, -6.935, 0), V(31.505, -19.735, 0)),  # 24
    Part.ArcOfCircle(Part.Circle(V(33.605001, -19.734999, 0), V(0, 0, 1), 2.100001), math.radians(-179.999978), math.radians(-90.000022)),  # 25
    Part.LineSegment(V(33.605, -21.835, 0), V(46.405, -21.835, 0)),  # 26
    Part.ArcOfCircle(Part.Circle(V(46.404999, -19.734999, 0), V(0, 0, 1), 2.100001), math.radians(-89.999978), math.radians(-0.000022)),  # 27
    Part.LineSegment(V(48.505, -19.735, 0), V(48.505, -6.935, 0)),  # 28
    Part.ArcOfCircle(Part.Circle(V(46.404999, -6.935001, 0), V(0, 0, 1), 2.100001), math.radians(0.000022), math.radians(89.999978)),  # 29
    Part.LineSegment(V(46.405, -4.835, 0), V(33.605, -4.835, 0)),  # 30
    Part.ArcOfCircle(Part.Circle(V(33.605001, -6.935001, 0), V(0, 0, 1), 2.100001), math.radians(90.000022), math.radians(179.999978)),  # 31
    Part.LineSegment(V(31.505, -33.605, 0), V(31.505, -46.405, 0)),  # 32
    Part.ArcOfCircle(Part.Circle(V(33.605001, -46.404999, 0), V(0, 0, 1), 2.100001), math.radians(-179.999978), math.radians(-90.000022)),  # 33
    Part.LineSegment(V(33.605, -48.505, 0), V(46.405, -48.505, 0)),  # 34
    Part.ArcOfCircle(Part.Circle(V(46.404999, -46.404999, 0), V(0, 0, 1), 2.100001), math.radians(-89.999978), math.radians(-0.000022)),  # 35
    Part.LineSegment(V(48.505, -46.405, 0), V(48.505, -33.605, 0)),  # 36
    Part.ArcOfCircle(Part.Circle(V(46.404999, -33.605001, 0), V(0, 0, 1), 2.100001), math.radians(0.000022), math.radians(89.999978)),  # 37
    Part.LineSegment(V(46.405, -31.505, 0), V(33.605, -31.505, 0)),  # 38
    Part.ArcOfCircle(Part.Circle(V(33.605001, -33.605001, 0), V(0, 0, 1), 2.100001), math.radians(90.000022), math.radians(179.999978)),  # 39
    Part.LineSegment(V(4.835, -33.605, 0), V(4.835, -46.405, 0)),  # 40
    Part.ArcOfCircle(Part.Circle(V(6.935001, -46.404999, 0), V(0, 0, 1), 2.100001), math.radians(-179.999978), math.radians(-90.000022)),  # 41
    Part.LineSegment(V(6.935, -48.505, 0), V(19.735, -48.505, 0)),  # 42
    Part.ArcOfCircle(Part.Circle(V(19.734999, -46.404999, 0), V(0, 0, 1), 2.100001), math.radians(-89.999978), math.radians(-0.000022)),  # 43
    Part.LineSegment(V(21.835, -46.405, 0), V(21.835, -33.605, 0)),  # 44
    Part.ArcOfCircle(Part.Circle(V(19.734999, -33.605001, 0), V(0, 0, 1), 2.100001), math.radians(0.000022), math.radians(89.999978)),  # 45
    Part.LineSegment(V(19.735, -31.505, 0), V(6.935, -31.505, 0)),  # 46
    Part.ArcOfCircle(Part.Circle(V(6.935001, -33.605001, 0), V(0, 0, 1), 2.100001), math.radians(90.000022), math.radians(179.999978)),  # 47
    Part.LineSegment(V(-21.835, -33.605, 0), V(-21.835, -46.405, 0)),  # 48
    Part.ArcOfCircle(Part.Circle(V(-19.734999, -46.404999, 0), V(0, 0, 1), 2.100001), math.radians(-179.999978), math.radians(-90.000022)),  # 49
    Part.LineSegment(V(-19.735, -48.505, 0), V(-6.935, -48.505, 0)),  # 50
    Part.ArcOfCircle(Part.Circle(V(-6.935001, -46.404999, 0), V(0, 0, 1), 2.100001), math.radians(-89.999978), math.radians(-0.000022)),  # 51
    Part.LineSegment(V(-4.835, -46.405, 0), V(-4.835, -33.605, 0)),  # 52
    Part.ArcOfCircle(Part.Circle(V(-6.935001, -33.605001, 0), V(0, 0, 1), 2.100001), math.radians(0.000022), math.radians(89.999978)),  # 53
    Part.LineSegment(V(-6.935, -31.505, 0), V(-19.735, -31.505, 0)),  # 54
    Part.ArcOfCircle(Part.Circle(V(-19.734999, -33.605001, 0), V(0, 0, 1), 2.100001), math.radians(90.000022), math.radians(179.999978)),  # 55
    Part.LineSegment(V(-48.505, -33.605, 0), V(-48.505, -46.405, 0)),  # 56
    Part.ArcOfCircle(Part.Circle(V(-46.404999, -46.404999, 0), V(0, 0, 1), 2.100001), math.radians(-179.999978), math.radians(-90.000022)),  # 57
    Part.LineSegment(V(-46.405, -48.505, 0), V(-33.605, -48.505, 0)),  # 58
    Part.ArcOfCircle(Part.Circle(V(-33.605001, -46.404999, 0), V(0, 0, 1), 2.100001), math.radians(-89.999978), math.radians(-0.000022)),  # 59
    Part.LineSegment(V(-31.505, -46.405, 0), V(-31.505, -33.605, 0)),  # 60
    Part.ArcOfCircle(Part.Circle(V(-33.605001, -33.605001, 0), V(0, 0, 1), 2.100001), math.radians(0.000022), math.radians(89.999978)),  # 61
    Part.LineSegment(V(-33.605, -31.505, 0), V(-46.405, -31.505, 0)),  # 62
    Part.ArcOfCircle(Part.Circle(V(-46.404999, -33.605001, 0), V(0, 0, 1), 2.100001), math.radians(90.000022), math.radians(179.999978)),  # 63
], False)
sketch6.addConstraint([
    Sketcher.Constraint("Tangent", 0, 2, 1, 1),
    Sketcher.Constraint("Tangent", 1, 2, 2, 1),
    Sketcher.Constraint("Tangent", 2, 2, 3, 1),
    Sketcher.Constraint("Tangent", 3, 2, 4, 1),
    Sketcher.Constraint("Tangent", 4, 2, 5, 1),
    Sketcher.Constraint("Tangent", 5, 2, 6, 1),
    Sketcher.Constraint("Tangent", 6, 2, 7, 1),
    Sketcher.Constraint("Tangent", 7, 2, 0, 1),
    Sketcher.Constraint("Tangent", 8, 2, 9, 1),
    Sketcher.Constraint("Tangent", 9, 2, 10, 1),
    Sketcher.Constraint("Tangent", 10, 2, 11, 1),
    Sketcher.Constraint("Tangent", 11, 2, 12, 1),
    Sketcher.Constraint("Tangent", 12, 2, 13, 1),
    Sketcher.Constraint("Tangent", 13, 2, 14, 1),
    Sketcher.Constraint("Tangent", 14, 2, 15, 1),
    Sketcher.Constraint("Tangent", 15, 2, 8, 1),
    Sketcher.Constraint("Tangent", 16, 2, 17, 1),
    Sketcher.Constraint("Tangent", 17, 2, 18, 1),
    Sketcher.Constraint("Tangent", 18, 2, 19, 1),
    Sketcher.Constraint("Tangent", 19, 2, 20, 1),
    Sketcher.Constraint("Tangent", 20, 2, 21, 1),
    Sketcher.Constraint("Tangent", 21, 2, 22, 1),
    Sketcher.Constraint("Tangent", 22, 2, 23, 1),
    Sketcher.Constraint("Tangent", 23, 2, 16, 1),
    Sketcher.Constraint("Tangent", 24, 2, 25, 1),
    Sketcher.Constraint("Tangent", 25, 2, 26, 1),
    Sketcher.Constraint("Tangent", 26, 2, 27, 1),
    Sketcher.Constraint("Tangent", 27, 2, 28, 1),
    Sketcher.Constraint("Tangent", 28, 2, 29, 1),
    Sketcher.Constraint("Tangent", 29, 2, 30, 1),
    Sketcher.Constraint("Tangent", 30, 2, 31, 1),
    Sketcher.Constraint("Tangent", 31, 2, 24, 1),
    Sketcher.Constraint("Tangent", 32, 2, 33, 1),
    Sketcher.Constraint("Tangent", 33, 2, 34, 1),
    Sketcher.Constraint("Tangent", 34, 2, 35, 1),
    Sketcher.Constraint("Tangent", 35, 2, 36, 1),
    Sketcher.Constraint("Tangent", 36, 2, 37, 1),
    Sketcher.Constraint("Tangent", 37, 2, 38, 1),
    Sketcher.Constraint("Tangent", 38, 2, 39, 1),
    Sketcher.Constraint("Tangent", 39, 2, 32, 1),
    Sketcher.Constraint("Tangent", 40, 2, 41, 1),
    Sketcher.Constraint("Tangent", 41, 2, 42, 1),
    Sketcher.Constraint("Tangent", 42, 2, 43, 1),
    Sketcher.Constraint("Tangent", 43, 2, 44, 1),
    Sketcher.Constraint("Tangent", 44, 2, 45, 1),
    Sketcher.Constraint("Tangent", 45, 2, 46, 1),
    Sketcher.Constraint("Tangent", 46, 2, 47, 1),
    Sketcher.Constraint("Tangent", 47, 2, 40, 1),
    Sketcher.Constraint("Tangent", 48, 2, 49, 1),
    Sketcher.Constraint("Tangent", 49, 2, 50, 1),
    Sketcher.Constraint("Tangent", 50, 2, 51, 1),
    Sketcher.Constraint("Tangent", 51, 2, 52, 1),
    Sketcher.Constraint("Tangent", 52, 2, 53, 1),
    Sketcher.Constraint("Tangent", 53, 2, 54, 1),
    Sketcher.Constraint("Tangent", 54, 2, 55, 1),
    Sketcher.Constraint("Tangent", 55, 2, 48, 1),
    Sketcher.Constraint("Tangent", 56, 2, 57, 1),
    Sketcher.Constraint("Tangent", 57, 2, 58, 1),
    Sketcher.Constraint("Tangent", 58, 2, 59, 1),
    Sketcher.Constraint("Tangent", 59, 2, 60, 1),
    Sketcher.Constraint("Tangent", 60, 2, 61, 1),
    Sketcher.Constraint("Tangent", 61, 2, 62, 1),
    Sketcher.Constraint("Tangent", 62, 2, 63, 1),
    Sketcher.Constraint("Tangent", 63, 2, 56, 1),
    Sketcher.Constraint("Vertical", 0),
    Sketcher.Constraint("Horizontal", 2),
    Sketcher.Constraint("Vertical", 4),
    Sketcher.Constraint("Horizontal", 6),
    Sketcher.Constraint("Vertical", 8),
    Sketcher.Constraint("Horizontal", 10),
    Sketcher.Constraint("Vertical", 12),
    Sketcher.Constraint("Horizontal", 14),
    Sketcher.Constraint("Vertical", 16),
    Sketcher.Constraint("Horizontal", 18),
    Sketcher.Constraint("Vertical", 20),
    Sketcher.Constraint("Horizontal", 22),
    Sketcher.Constraint("Vertical", 24),
    Sketcher.Constraint("Horizontal", 26),
    Sketcher.Constraint("Vertical", 28),
    Sketcher.Constraint("Horizontal", 30),
    Sketcher.Constraint("Vertical", 32),
    Sketcher.Constraint("Horizontal", 34),
    Sketcher.Constraint("Vertical", 36),
    Sketcher.Constraint("Horizontal", 38),
    Sketcher.Constraint("Vertical", 40),
    Sketcher.Constraint("Horizontal", 42),
    Sketcher.Constraint("Vertical", 44),
    Sketcher.Constraint("Horizontal", 46),
    Sketcher.Constraint("Vertical", 48),
    Sketcher.Constraint("Horizontal", 50),
    Sketcher.Constraint("Vertical", 52),
    Sketcher.Constraint("Horizontal", 54),
    Sketcher.Constraint("Vertical", 56),
    Sketcher.Constraint("Horizontal", 58),
    Sketcher.Constraint("Vertical", 60),
    Sketcher.Constraint("Horizontal", 62),
    Sketcher.Constraint("Equal", 1, 3),
    Sketcher.Constraint("Equal", 3, 5),
    Sketcher.Constraint("Equal", 5, 7),
    Sketcher.Constraint("Equal", 7, 9),
    Sketcher.Constraint("Equal", 9, 11),
    Sketcher.Constraint("Equal", 11, 13),
    Sketcher.Constraint("Equal", 13, 15),
    Sketcher.Constraint("Equal", 15, 17),
    Sketcher.Constraint("Equal", 17, 19),
    Sketcher.Constraint("Equal", 19, 21),
    Sketcher.Constraint("Equal", 21, 23),
    Sketcher.Constraint("Equal", 23, 25),
    Sketcher.Constraint("Equal", 25, 27),
    Sketcher.Constraint("Equal", 27, 29),
    Sketcher.Constraint("Equal", 29, 31),
    Sketcher.Constraint("Equal", 31, 33),
    Sketcher.Constraint("Equal", 33, 35),
    Sketcher.Constraint("Equal", 35, 37),
    Sketcher.Constraint("Equal", 37, 39),
    Sketcher.Constraint("Equal", 39, 41),
    Sketcher.Constraint("Equal", 41, 43),
    Sketcher.Constraint("Equal", 43, 45),
    Sketcher.Constraint("Equal", 45, 47),
    Sketcher.Constraint("Equal", 47, 49),
    Sketcher.Constraint("Equal", 49, 51),
    Sketcher.Constraint("Equal", 51, 53),
    Sketcher.Constraint("Equal", 53, 55),
    Sketcher.Constraint("Equal", 55, 57),
    Sketcher.Constraint("Equal", 57, 59),
    Sketcher.Constraint("Equal", 59, 61),
    Sketcher.Constraint("Equal", 61, 63),
    Sketcher.Constraint("Symmetric", 11, 3, 17, 3, -2),
    Sketcher.Constraint("Symmetric", 15, 3, 21, 3, -2),
    Sketcher.Constraint("Symmetric", 3, 3, 25, 3, -2),
    Sketcher.Constraint("Symmetric", 7, 3, 29, 3, -2),
    Sketcher.Constraint("Symmetric", 43, 3, 49, 3, -2),
    Sketcher.Constraint("Symmetric", 47, 3, 53, 3, -2),
    Sketcher.Constraint("Symmetric", 35, 3, 57, 3, -2),
    Sketcher.Constraint("Symmetric", 39, 3, 61, 3, -2),
    Sketcher.Constraint("Horizontal", 3, 3, 9, 3),
    Sketcher.Constraint("Horizontal", 7, 3, 13, 3),
    Sketcher.Constraint("Horizontal", 35, 3, 41, 3),
    Sketcher.Constraint("Horizontal", 39, 3, 45, 3),
    Sketcher.Constraint("Vertical", 31, 3, 33, 3),
    Sketcher.Constraint("Vertical", 29, 3, 35, 3),
    Sketcher.Constraint("Vertical", 23, 3, 41, 3),
    Sketcher.Constraint("Vertical", 21, 3, 43, 3),
    Sketcher.Constraint("Equal", 6, 10),
    Sketcher.Constraint("Equal", 62, 0),
    Sketcher.Constraint("Equal", 28, 32),
    Sketcher.Constraint("Radius", 1, Q("2.100001 mm")),
    Sketcher.Constraint("DistanceX", 2, 1, 2, 2, Q("12.8 mm")),
    Sketcher.Constraint("DistanceX", 1, 3, -1, 1, Q("46.404999 mm")),
    Sketcher.Constraint("DistanceY", 1, 3, -1, 1, Q("19.734999 mm")),
    Sketcher.Constraint("DistanceX", 9, 3, -1, 1, Q("19.734999 mm")),
    Sketcher.Constraint("DistanceY", 33, 3, -1, 1, Q("46.404999 mm")),
])
pocket4 = doc.addObject("PartDesign::Pocket", "Pocket003")
body.addObject(pocket4)
pocket4.Profile = sketch6
pocket4.Type = "ThroughAll"

doc.recompute()
